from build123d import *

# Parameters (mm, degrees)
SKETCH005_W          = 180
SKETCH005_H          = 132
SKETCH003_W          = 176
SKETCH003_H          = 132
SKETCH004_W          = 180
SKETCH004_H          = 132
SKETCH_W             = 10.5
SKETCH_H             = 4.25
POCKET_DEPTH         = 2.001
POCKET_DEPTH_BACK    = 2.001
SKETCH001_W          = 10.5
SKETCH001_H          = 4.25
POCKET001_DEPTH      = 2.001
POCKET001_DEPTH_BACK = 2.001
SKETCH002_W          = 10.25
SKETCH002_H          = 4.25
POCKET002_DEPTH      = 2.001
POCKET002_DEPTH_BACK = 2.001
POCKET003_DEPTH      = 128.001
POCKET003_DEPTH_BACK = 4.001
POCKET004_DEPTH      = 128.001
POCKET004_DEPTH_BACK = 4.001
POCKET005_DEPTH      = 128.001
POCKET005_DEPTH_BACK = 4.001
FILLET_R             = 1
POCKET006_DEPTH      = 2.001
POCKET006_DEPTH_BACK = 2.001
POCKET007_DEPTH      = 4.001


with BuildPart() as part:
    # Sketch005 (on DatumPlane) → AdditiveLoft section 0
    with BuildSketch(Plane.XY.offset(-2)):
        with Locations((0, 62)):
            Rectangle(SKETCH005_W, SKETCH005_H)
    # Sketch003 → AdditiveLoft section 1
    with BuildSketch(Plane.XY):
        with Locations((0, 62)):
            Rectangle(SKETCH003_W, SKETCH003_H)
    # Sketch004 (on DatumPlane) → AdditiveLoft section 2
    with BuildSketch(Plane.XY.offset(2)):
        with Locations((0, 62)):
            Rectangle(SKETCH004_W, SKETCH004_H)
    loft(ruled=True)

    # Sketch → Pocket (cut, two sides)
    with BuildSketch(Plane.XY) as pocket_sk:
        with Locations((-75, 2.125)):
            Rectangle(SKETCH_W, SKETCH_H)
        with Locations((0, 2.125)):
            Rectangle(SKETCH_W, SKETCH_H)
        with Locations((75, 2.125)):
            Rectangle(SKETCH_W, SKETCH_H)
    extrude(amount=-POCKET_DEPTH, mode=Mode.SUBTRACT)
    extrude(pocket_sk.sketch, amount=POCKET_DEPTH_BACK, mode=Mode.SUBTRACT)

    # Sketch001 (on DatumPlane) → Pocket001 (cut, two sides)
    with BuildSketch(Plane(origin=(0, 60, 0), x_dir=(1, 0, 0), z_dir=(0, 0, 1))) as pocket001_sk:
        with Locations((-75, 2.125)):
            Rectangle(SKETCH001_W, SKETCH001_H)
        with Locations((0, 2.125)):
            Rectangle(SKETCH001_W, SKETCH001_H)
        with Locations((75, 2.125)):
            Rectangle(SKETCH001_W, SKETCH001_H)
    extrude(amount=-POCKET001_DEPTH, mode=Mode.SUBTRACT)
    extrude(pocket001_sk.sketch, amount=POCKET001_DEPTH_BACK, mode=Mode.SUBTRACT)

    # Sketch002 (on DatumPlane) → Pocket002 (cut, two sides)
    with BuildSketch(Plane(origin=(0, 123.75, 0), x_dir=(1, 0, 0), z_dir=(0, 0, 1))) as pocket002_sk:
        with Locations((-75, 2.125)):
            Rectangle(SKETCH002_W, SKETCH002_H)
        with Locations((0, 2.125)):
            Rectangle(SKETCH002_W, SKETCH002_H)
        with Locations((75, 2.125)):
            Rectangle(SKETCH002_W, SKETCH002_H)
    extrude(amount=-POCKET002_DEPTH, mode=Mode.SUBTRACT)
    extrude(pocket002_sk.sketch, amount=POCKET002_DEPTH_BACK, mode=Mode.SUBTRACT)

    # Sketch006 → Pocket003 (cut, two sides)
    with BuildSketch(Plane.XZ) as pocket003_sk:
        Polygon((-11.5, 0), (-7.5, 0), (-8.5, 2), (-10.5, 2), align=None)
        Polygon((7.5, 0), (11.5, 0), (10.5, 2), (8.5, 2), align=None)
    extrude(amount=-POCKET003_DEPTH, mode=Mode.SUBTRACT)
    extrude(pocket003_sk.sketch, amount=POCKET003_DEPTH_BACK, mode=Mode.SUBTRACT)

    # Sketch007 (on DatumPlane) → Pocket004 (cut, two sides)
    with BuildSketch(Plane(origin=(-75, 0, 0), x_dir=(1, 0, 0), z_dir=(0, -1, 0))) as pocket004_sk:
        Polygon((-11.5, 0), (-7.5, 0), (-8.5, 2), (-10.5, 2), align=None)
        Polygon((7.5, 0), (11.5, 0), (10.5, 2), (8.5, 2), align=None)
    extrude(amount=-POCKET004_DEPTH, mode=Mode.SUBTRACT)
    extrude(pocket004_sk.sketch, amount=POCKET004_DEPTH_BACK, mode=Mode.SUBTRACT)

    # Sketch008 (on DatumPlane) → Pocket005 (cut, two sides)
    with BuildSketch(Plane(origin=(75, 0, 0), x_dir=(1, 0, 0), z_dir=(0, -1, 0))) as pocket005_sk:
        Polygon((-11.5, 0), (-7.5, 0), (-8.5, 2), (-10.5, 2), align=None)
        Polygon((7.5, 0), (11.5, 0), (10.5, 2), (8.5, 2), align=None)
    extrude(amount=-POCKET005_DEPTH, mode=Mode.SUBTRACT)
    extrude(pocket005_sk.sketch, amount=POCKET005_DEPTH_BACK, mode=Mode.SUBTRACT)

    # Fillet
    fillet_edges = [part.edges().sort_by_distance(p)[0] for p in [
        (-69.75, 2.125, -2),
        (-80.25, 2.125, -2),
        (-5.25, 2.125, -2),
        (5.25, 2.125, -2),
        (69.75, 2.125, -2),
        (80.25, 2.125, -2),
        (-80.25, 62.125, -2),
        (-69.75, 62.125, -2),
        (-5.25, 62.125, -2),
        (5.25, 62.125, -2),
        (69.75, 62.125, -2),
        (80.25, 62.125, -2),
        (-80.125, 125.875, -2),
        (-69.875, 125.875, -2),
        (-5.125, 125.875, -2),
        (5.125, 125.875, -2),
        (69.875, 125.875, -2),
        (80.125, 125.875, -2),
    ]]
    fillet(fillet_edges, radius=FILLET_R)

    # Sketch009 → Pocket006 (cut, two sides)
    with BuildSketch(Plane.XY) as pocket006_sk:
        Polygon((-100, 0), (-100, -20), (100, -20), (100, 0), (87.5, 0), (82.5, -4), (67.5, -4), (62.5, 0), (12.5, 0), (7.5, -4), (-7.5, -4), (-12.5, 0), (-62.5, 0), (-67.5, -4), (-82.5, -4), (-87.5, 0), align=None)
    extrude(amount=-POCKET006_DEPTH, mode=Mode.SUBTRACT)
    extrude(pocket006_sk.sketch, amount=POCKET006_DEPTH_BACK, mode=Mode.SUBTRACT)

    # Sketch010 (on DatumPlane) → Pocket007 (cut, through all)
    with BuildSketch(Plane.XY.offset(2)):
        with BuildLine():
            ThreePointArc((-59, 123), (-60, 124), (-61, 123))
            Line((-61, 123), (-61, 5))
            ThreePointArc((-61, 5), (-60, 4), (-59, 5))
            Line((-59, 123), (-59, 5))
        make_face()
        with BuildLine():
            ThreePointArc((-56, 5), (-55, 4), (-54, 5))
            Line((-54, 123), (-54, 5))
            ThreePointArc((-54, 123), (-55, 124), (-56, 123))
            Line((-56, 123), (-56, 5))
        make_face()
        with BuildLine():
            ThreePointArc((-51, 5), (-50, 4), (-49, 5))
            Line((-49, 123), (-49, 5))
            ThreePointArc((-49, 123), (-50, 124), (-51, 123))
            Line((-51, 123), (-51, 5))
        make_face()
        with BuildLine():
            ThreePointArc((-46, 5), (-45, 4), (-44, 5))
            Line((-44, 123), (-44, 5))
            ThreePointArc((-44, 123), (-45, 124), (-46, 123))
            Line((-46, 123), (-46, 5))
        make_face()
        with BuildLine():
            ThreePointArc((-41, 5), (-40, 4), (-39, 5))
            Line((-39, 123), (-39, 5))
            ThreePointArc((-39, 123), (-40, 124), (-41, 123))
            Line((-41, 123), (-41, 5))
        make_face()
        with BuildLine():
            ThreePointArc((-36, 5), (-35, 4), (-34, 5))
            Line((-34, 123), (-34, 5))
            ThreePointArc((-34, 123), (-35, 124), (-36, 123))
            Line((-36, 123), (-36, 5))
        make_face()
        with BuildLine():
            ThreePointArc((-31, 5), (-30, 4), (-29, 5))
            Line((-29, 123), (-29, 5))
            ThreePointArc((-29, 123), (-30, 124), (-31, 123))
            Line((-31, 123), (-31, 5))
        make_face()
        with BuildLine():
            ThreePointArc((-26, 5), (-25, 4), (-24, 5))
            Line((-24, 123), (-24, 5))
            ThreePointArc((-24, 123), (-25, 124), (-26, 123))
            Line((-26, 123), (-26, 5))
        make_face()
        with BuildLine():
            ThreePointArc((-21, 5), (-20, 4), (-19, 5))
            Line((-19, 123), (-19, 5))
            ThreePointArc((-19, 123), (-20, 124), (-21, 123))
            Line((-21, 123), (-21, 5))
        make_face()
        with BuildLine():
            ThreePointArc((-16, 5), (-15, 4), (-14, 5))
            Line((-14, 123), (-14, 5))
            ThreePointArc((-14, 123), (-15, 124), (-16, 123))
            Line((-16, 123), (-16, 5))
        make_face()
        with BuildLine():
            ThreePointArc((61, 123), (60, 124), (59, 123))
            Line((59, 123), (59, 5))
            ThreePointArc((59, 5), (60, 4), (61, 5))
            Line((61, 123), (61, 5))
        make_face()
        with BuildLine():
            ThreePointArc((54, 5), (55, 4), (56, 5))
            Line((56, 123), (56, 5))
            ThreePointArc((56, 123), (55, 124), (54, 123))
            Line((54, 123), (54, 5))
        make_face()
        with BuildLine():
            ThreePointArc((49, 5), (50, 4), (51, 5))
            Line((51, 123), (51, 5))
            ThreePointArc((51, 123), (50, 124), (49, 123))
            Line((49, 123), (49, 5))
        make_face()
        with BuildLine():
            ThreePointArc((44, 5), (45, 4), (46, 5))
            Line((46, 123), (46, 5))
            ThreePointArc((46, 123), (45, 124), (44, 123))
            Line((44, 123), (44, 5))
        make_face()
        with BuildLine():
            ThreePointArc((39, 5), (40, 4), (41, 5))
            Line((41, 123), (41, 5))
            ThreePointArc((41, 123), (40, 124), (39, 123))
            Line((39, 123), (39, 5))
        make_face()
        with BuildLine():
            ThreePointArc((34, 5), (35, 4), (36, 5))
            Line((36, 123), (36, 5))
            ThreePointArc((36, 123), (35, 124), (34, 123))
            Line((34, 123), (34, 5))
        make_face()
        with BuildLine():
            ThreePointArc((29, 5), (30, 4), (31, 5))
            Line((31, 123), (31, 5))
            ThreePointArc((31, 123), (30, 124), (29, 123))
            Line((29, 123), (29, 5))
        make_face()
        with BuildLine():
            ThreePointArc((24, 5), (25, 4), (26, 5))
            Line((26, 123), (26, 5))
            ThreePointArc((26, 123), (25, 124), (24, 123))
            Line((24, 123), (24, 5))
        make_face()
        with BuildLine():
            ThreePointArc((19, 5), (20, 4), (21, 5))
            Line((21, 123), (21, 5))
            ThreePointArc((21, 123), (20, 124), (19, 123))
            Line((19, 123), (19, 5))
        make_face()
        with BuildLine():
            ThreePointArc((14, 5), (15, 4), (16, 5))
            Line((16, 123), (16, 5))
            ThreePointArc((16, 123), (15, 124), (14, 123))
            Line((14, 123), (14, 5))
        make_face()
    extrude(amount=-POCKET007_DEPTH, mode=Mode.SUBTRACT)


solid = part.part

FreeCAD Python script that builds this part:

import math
import FreeCAD as App
import Part
import Sketcher
Q = App.Units.Quantity


def edges_at(feature, points):
    """Names of the edges that pass closest to the given points."""
    edges = feature.Shape.Edges
    near = lambda p: min(range(len(edges)), key=lambda i: edges[i].distToShape(Part.Vertex(*p))[0])
    return sorted({f"Edge{near(p) + 1}" for p in points})


def add_polygon(sketch, points):
    """Adds a closed chain of lines whose ends are joined by coincident constraints."""
    first, n = sketch.GeometryCount, len(points)
    for a, b in zip(points, points[1:] + points[:1]):
        sketch.addGeometry(Part.LineSegment(App.Vector(*a, 0), App.Vector(*b, 0)), False)
    for i in range(n):
        sketch.addConstraint(Sketcher.Constraint("Coincident", first + i, 2, first + (i + 1) % n, 1))

doc = App.newDocument("Part")
body = doc.addObject("PartDesign::Body", "Body")

# Sketch on XY plane
sketch1 = body.newObject("Sketcher::SketchObject", "Sketch")
sketch1.AttachmentSupport = (doc.getObject("XY_Plane"), [""])
sketch1.MapMode = "FlatFace"
sketch1.AttachmentOffset = App.Placement(App.Vector(0, 0, -2), App.Rotation())
add_polygon(sketch1, [(-90, 128), (-90, -4), (90, -4), (90, 128)])  # lines 0-3
sketch1.addConstraint([
    Sketcher.Constraint("Vertical", 0),
    Sketcher.Constraint("Horizontal", 1),
    Sketcher.Constraint("Vertical", 2),
    Sketcher.Constraint("Horizontal", 3),
    Sketcher.Constraint("DistanceX", 1, 1, 1, 2, Q("180 mm")),
    Sketcher.Constraint("DistanceY", 0, 2, 0, 1, Q("132 mm")),
    Sketcher.Constraint("DistanceX", 0, 2, -1, 1, Q("90 mm")),
    Sketcher.Constraint("DistanceY", 0, 2, -1, 1, Q("4 mm")),
])

# Sketch on XY plane
sketch2 = body.newObject("Sketcher::SketchObject", "Sketch001")
sketch2.AttachmentSupport = (doc.getObject("XY_Plane"), [""])
sketch2.MapMode = "FlatFace"
add_polygon(sketch2, [(-88, 128), (-88, -4), (88, -4), (88, 128)])  # lines 0-3
sketch2.addConstraint([
    Sketcher.Constraint("Vertical", 0),
    Sketcher.Constraint("Horizontal", 1),
    Sketcher.Constraint("Vertical", 2),
    Sketcher.Constraint("Horizontal", 3),
    Sketcher.Constraint("DistanceX", 1, 1, 1, 2, Q("176 mm")),
    Sketcher.Constraint("DistanceY", 0, 2, 0, 1, Q("132 mm")),
    Sketcher.Constraint("DistanceX", 0, 2, -1, 1, Q("88 mm")),
    Sketcher.Constraint("DistanceY", 0, 2, -1, 1, Q("4 mm")),
])

# Sketch on XY plane
sketch3 = body.newObject("Sketcher::SketchObject", "Sketch002")
sketch3.AttachmentSupport = (doc.getObject("XY_Plane"), [""])
sketch3.MapMode = "FlatFace"
sketch3.AttachmentOffset = App.Placement(App.Vector(0, 0, 2), App.Rotation())
add_polygon(sketch3, [(-90, 128), (-90, -4), (90, -4), (90, 128)])  # lines 0-3
sketch3.addConstraint([
    Sketcher.Constraint("Vertical", 0),
    Sketcher.Constraint("Horizontal", 1),
    Sketcher.Constraint("Vertical", 2),
    Sketcher.Constraint("Horizontal", 3),
    Sketcher.Constraint("DistanceX", 1, 1, 1, 2, Q("180 mm")),
    Sketcher.Constraint("DistanceY", 0, 2, 0, 1, Q("132 mm")),
    Sketcher.Constraint("DistanceX", 0, 2, -1, 1, Q("90 mm")),
    Sketcher.Constraint("DistanceY", 0, 2, -1, 1, Q("4 mm")),
])

additiveloft = body.newObject("PartDesign::AdditiveLoft", "AdditiveLoft")
additiveloft.Profile = sketch1
additiveloft.Sections = [sketch2, sketch3]
additiveloft.Ruled = True

# Sketch on XY plane
sketch4 = body.newObject("Sketcher::SketchObject", "Sketch003")
sketch4.AttachmentSupport = (doc.getObject("XY_Plane"), [""])
sketch4.MapMode = "FlatFace"
add_polygon(sketch4, [(-80.25, 4.25), (-80.25, 0), (-69.75, 0), (-69.75, 4.25)])  # lines 0-3
add_polygon(sketch4, [(-5.25, 4.25), (-5.25, 0), (5.25, 0), (5.25, 4.25)])  # lines 4-7
add_polygon(sketch4, [(69.75, 4.25), (69.75, 0), (80.25, 0), (80.25, 4.25)])  # lines 8-11
sketch4.addConstraint([
    Sketcher.Constraint("Vertical", 0),
    Sketcher.Constraint("Horizontal", 1),
    Sketcher.Constraint("Vertical", 2),
    Sketcher.Constraint("Horizontal", 3),
    Sketcher.Constraint("Vertical", 4),
    Sketcher.Constraint("Horizontal", 5),
    Sketcher.Constraint("Vertical", 6),
    Sketcher.Constraint("Horizontal", 7),
    Sketcher.Constraint("Vertical", 8),
    Sketcher.Constraint("Horizontal", 9),
    Sketcher.Constraint("Vertical", 10),
    Sketcher.Constraint("Horizontal", 11),
    Sketcher.Constraint("Symmetric", 4, 2, 5, 2, -1, 1),
    Sketcher.Constraint("Symmetric", 1, 2, 8, 2, -1, 1),
    Sketcher.Constraint("Symmetric", 0, 2, 9, 2, -2),
    Sketcher.Constraint("Horizontal", 3, 2, 6, 2),
    Sketcher.Constraint("Horizontal", 7, 2, 10, 2),
    Sketcher.Constraint("Equal", 3, 5),
    Sketcher.Constraint("DistanceX", 1, 1, 1, 2, Q("10.5 mm")),
    Sketcher.Constraint("DistanceX", 0, 2, 4, 2, Q("75 mm")),
    Sketcher.Constraint("DistanceY", 0, 2, 0, 1, Q("4.25 mm")),
])
pocket1 = body.newObject("PartDesign::Pocket", "Pocket")
pocket1.Profile = sketch4
pocket1.Type = "ThroughAll"
pocket1.Midplane = True

# Sketch on XY plane
sketch5 = body.newObject("Sketcher::SketchObject", "Sketch004")
sketch5.AttachmentSupport = (doc.getObject("XY_Plane"), [""])
sketch5.MapMode = "FlatFace"
add_polygon(sketch5, [(-80.25, 64.25), (-80.25, 60), (-69.75, 60), (-69.75, 64.25)])  # lines 0-3
add_polygon(sketch5, [(-5.25, 64.25), (-5.25, 60), (5.25, 60), (5.25, 64.25)])  # lines 4-7
add_polygon(sketch5, [(69.75, 64.25), (69.75, 60), (80.25, 60), (80.25, 64.25)])  # lines 8-11
sketch5.addConstraint([
    Sketcher.Constraint("Vertical", 0),
    Sketcher.Constraint("Horizontal", 1),
    Sketcher.Constraint("Vertical", 2),
    Sketcher.Constraint("Horizontal", 3),
    Sketcher.Constraint("Vertical", 4),
    Sketcher.Constraint("Horizontal", 5),
    Sketcher.Constraint("Vertical", 6),
    Sketcher.Constraint("Horizontal", 7),
    Sketcher.Constraint("Vertical", 8),
    Sketcher.Constraint("Horizontal", 9),
    Sketcher.Constraint("Vertical", 10),
    Sketcher.Constraint("Horizontal", 11),
    Sketcher.Constraint("Symmetric", 1, 2, 8, 2, -2),
    Sketcher.Constraint("Symmetric", 3, 2, 10, 2, -2),
    Sketcher.Constraint("Horizontal", 1, 2, 4, 2),
    Sketcher.Constraint("Horizontal", 3, 2, 6, 2),
    Sketcher.Constraint("Equal", 3, 5),
    Sketcher.Constraint("DistanceX", 1, 1, 1, 2, Q("10.5 mm")),
    Sketcher.Constraint("DistanceY", -1, 1, 0, 2, Q("60 mm")),
    Sketcher.Constraint("DistanceX", 0, 2, 4, 2, Q("75 mm")),
    Sketcher.Constraint("DistanceX", 4, 2, 8, 2, Q("75 mm")),
    Sketcher.Constraint("DistanceY", 0, 2, 0, 1, Q("4.25 mm")),
])
pocket2 = body.newObject("PartDesign::Pocket", "Pocket001")
pocket2.Profile = sketch5
pocket2.Type = "ThroughAll"
pocket2.Midplane = True

# Sketch on XY plane
sketch6 = body.newObject("Sketcher::SketchObject", "Sketch005")
sketch6.AttachmentSupport = (doc.getObject("XY_Plane"), [""])
sketch6.MapMode = "FlatFace"
add_polygon(sketch6, [(-80.125, 128), (-80.125, 123.75), (-69.875, 123.75), (-69.875, 128)])  # lines 0-3
add_polygon(sketch6, [(-5.125, 128), (-5.125, 123.75), (5.125, 123.75), (5.125, 128)])  # lines 4-7
add_polygon(sketch6, [(69.875, 128), (69.875, 123.75), (80.125, 123.75), (80.125, 128)])  # lines 8-11
sketch6.addConstraint([
    Sketcher.Constraint("Vertical", 0),
    Sketcher.Constraint("Horizontal", 1),
    Sketcher.Constraint("Vertical", 2),
    Sketcher.Constraint("Horizontal", 3),
    Sketcher.Constraint("Vertical", 4),
    Sketcher.Constraint("Horizontal", 5),
    Sketcher.Constraint("Vertical", 6),
    Sketcher.Constraint("Horizontal", 7),
    Sketcher.Constraint("Vertical", 8),
    Sketcher.Constraint("Horizontal", 9),
    Sketcher.Constraint("Vertical", 10),
    Sketcher.Constraint("Horizontal", 11),
    Sketcher.Constraint("Symmetric", 1, 2, 8, 2, -2),
    Sketcher.Constraint("Symmetric", 3, 2, 10, 2, -2),
    Sketcher.Constraint("Horizontal", 1, 2, 4, 2),
    Sketcher.Constraint("Horizontal", 3, 2, 6, 2),
    Sketcher.Constraint("Equal", 3, 5),
    Sketcher.Constraint("DistanceY", -1, 1, 2, 2, Q("128 mm")),
    Sketcher.Constraint("DistanceX", 0, 2, 4, 2, Q("75 mm")),
    Sketcher.Constraint("DistanceX", 4, 2, 8, 2, Q("75 mm")),
    Sketcher.Constraint("DistanceX", 1, 1, 1, 2, Q("10.25 mm")),
    Sketcher.Constraint("DistanceY", 0, 2, 0, 1, Q("4.25 mm")),
])
pocket3 = body.newObject("PartDesign::Pocket", "Pocket002")
pocket3.Profile = sketch6
pocket3.Type = "ThroughAll"
pocket3.Midplane = True

# Sketch on XZ plane
sketch7 = body.newObject("Sketcher::SketchObject", "Sketch006")
sketch7.AttachmentSupport = (doc.getObject("XZ_Plane"), [""])
sketch7.MapMode = "FlatFace"
add_polygon(sketch7, [(-11.5, 0), (-7.5, 0), (-8.5, 2), (-10.5, 2)])  # lines 0-3
add_polygon(sketch7, [(7.5, 0), (11.5, 0), (10.5, 2), (8.5, 2)])  # lines 4-7
sketch7.addConstraint([
    Sketcher.Constraint("Horizontal", 0),
    Sketcher.Constraint("Horizontal", 2),
    Sketcher.Constraint("Horizontal", 4),
    Sketcher.Constraint("Horizontal", 6),
    Sketcher.Constraint("Symmetric", 3, 2, 4, 2, -1, 1),
    Sketcher.Constraint("Symmetric", 2, 2, 5, 2, -2),
    Sketcher.Constraint("Symmetric", 0, 2, 7, 2, -2),
    Sketcher.Constraint("Parallel", 1, 5),
    Sketcher.Constraint("Parallel", 3, 7),
    Sketcher.Constraint("DistanceX", 0, 1, 0, 2, Q("4 mm")),
    Sketcher.Constraint("DistanceX", 2, 2, 2, 1, Q("2 mm")),
    Sketcher.Constraint("DistanceY", -1, 1, 1, 2, Q("2 mm")),
    Sketcher.Constraint("DistanceX", 0, 2, 4, 2, Q("19 mm")),
])
pocket4 = body.newObject("PartDesign::Pocket", "Pocket003")
pocket4.Profile = sketch7
pocket4.Type = "ThroughAll"
pocket4.Midplane = True

# Sketch on XZ plane
sketch8 = body.newObject("Sketcher::SketchObject", "Sketch007")
sketch8.AttachmentSupport = (doc.getObject("XZ_Plane"), [""])
sketch8.MapMode = "FlatFace"
add_polygon(sketch8, [(-86.5, 0), (-82.5, 0), (-83.5, 2), (-85.5, 2)])  # lines 0-3
add_polygon(sketch8, [(-67.5, 0), (-63.5, 0), (-64.5, 2), (-66.5, 2)])  # lines 4-7
sketch8.addConstraint([
    Sketcher.Constraint("Horizontal", 0),
    Sketcher.Constraint("Horizontal", 2),
    Sketcher.Constraint("Horizontal", 4),
    Sketcher.Constraint("Horizontal", 6),
    Sketcher.Constraint("PointOnObject", 0, 2, -1),
    Sketcher.Constraint("PointOnObject", 4, 2, -1),
    Sketcher.Constraint("Parallel", 1, 5),
    Sketcher.Constraint("Parallel", 3, 7),
    Sketcher.Constraint("Horizontal", 2, 2, 5, 2),
    Sketcher.Constraint("Equal", 0, 4),
    Sketcher.Constraint("Equal", 1, 3),
    Sketcher.Constraint("DistanceX", 0, 1, 0, 2, Q("4 mm")),
    Sketcher.Constraint("DistanceX", 2, 2, 2, 1, Q("2 mm")),
    Sketcher.Constraint("DistanceY", -1, 1, 1, 2, Q("2 mm")),
    Sketcher.Constraint("DistanceX", 0, 2, 4, 2, Q("19 mm")),
    Sketcher.Constraint("DistanceX", 0, 2, -1, 1, Q("82.5 mm")),
])
pocket5 = body.newObject("PartDesign::Pocket", "Pocket004")
pocket5.Profile = sketch8
pocket5.Type = "ThroughAll"
pocket5.Midplane = True

# Sketch on XZ plane
sketch9 = body.newObject("Sketcher::SketchObject", "Sketch008")
sketch9.AttachmentSupport = (doc.getObject("XZ_Plane"), [""])
sketch9.MapMode = "FlatFace"
add_polygon(sketch9, [(63.5, 0), (67.5, 0), (66.5, 2), (64.5, 2)])  # lines 0-3
add_polygon(sketch9, [(82.5, 0), (86.5, 0), (85.5, 2), (83.5, 2)])  # lines 4-7
sketch9.addConstraint([
    Sketcher.Constraint("Horizontal", 0),
    Sketcher.Constraint("Horizontal", 2),
    Sketcher.Constraint("Horizontal", 4),
    Sketcher.Constraint("Horizontal", 6),
    Sketcher.Constraint("PointOnObject", 0, 2, -1),
    Sketcher.Constraint("PointOnObject", 4, 2, -1),
    Sketcher.Constraint("Parallel", 1, 5),
    Sketcher.Constraint("Parallel", 3, 7),
    Sketcher.Constraint("Horizontal", 2, 2, 5, 2),
    Sketcher.Constraint("Equal", 0, 4),
    Sketcher.Constraint("Equal", 1, 3),
    Sketcher.Constraint("DistanceX", 0, 1, 0, 2, Q("4 mm")),
    Sketcher.Constraint("DistanceX", 2, 2, 2, 1, Q("2 mm")),
    Sketcher.Constraint("DistanceY", -1, 1, 1, 2, Q("2 mm")),
    Sketcher.Constraint("DistanceX", 0, 2, 4, 2, Q("19 mm")),
    Sketcher.Constraint("DistanceX", -1, 1, 0, 2, Q("67.5 mm")),
])
pocket6 = body.newObject("PartDesign::Pocket", "Pocket005")
pocket6.Profile = sketch9
pocket6.Type = "ThroughAll"
pocket6.Midplane = True
doc.recompute()

fillet = body.newObject("PartDesign::Fillet", "Fillet")
fillet.Base = (pocket6, edges_at(pocket6, [
    (-69.75, 2.125, -2),
    (-80.25, 2.125, -2),
    (-5.25, 2.125, -2),
    (5.25, 2.125, -2),
    (69.75, 2.125, -2),
    (80.25, 2.125, -2),
    (-80.25, 62.125, -2),
    (-69.75, 62.125, -2),
    (-5.25, 62.125, -2),
    (5.25, 62.125, -2),
    (69.75, 62.125, -2),
    (80.25, 62.125, -2),
    (-80.125, 125.875, -2),
    (-69.875, 125.875, -2),
    (-5.125, 125.875, -2),
    (5.125, 125.875, -2),
    (69.875, 125.875, -2),
    (80.125, 125.875, -2),
]))
fillet.Radius = 1

# Sketch on XY plane
sketch10 = body.newObject("Sketcher::SketchObject", "Sketch009")
sketch10.AttachmentSupport = (doc.getObject("XY_Plane"), [""])
sketch10.MapMode = "FlatFace"
add_polygon(sketch10, [(-100, 0), (-100, -20), (100, -20), (100, 0), (87.5, 0), (82.5, -4), (67.5, -4), (62.5, 0), (12.5, 0), (7.5, -4), (-7.5, -4), (-12.5, 0), (-62.5, 0), (-67.5, -4), (-82.5, -4), (-87.5, 0)])  # lines 0-15
sketch10.addConstraint([
    Sketcher.Constraint("Vertical", 0),
    Sketcher.Constraint("Horizontal", 1),
    Sketcher.Constraint("Vertical", 2),
    Sketcher.Constraint("Horizontal", 3),
    Sketcher.Constraint("Horizontal", 5),
    Sketcher.Constraint("Horizontal", 7),
    Sketcher.Constraint("Horizontal", 9),
    Sketcher.Constraint("Horizontal", 11),
    Sketcher.Constraint("Horizontal", 13),
    Sketcher.Constraint("Horizontal", 15),
    Sketcher.Constraint("Symmetric", 7, 2, 10, 2, -1, 1),
    Sketcher.Constraint("Symmetric", 3, 2, 14, 2, -1, 1),
    Sketcher.Constraint("Symmetric", 6, 2, 11, 2, -2),
    Sketcher.Constraint("Symmetric", 5, 2, 12, 2, -2),
    Sketcher.Constraint("Symmetric", 2, 2, 15, 2, -2),
    Sketcher.Constraint("Parallel", 4, 8),
    Sketcher.Constraint("Parallel", 6, 10),
    Sketcher.Constraint("Parallel", 8, 12),
    Sketcher.Constraint("Parallel", 10, 14),
    Sketcher.Constraint("Horizontal", 5, 2, 8, 2),
    Sketcher.Constraint("Equal", 5, 9),
    Sketcher.Constraint("DistanceX", 1, 1, 1, 2, Q("200 mm")),
    Sketcher.Constraint("DistanceX", 5, 2, 5, 1, Q("15 mm")),
    Sketcher.Constraint("DistanceX", 7, 2, 7, 1, Q("50 mm")),
    Sketcher.Constraint("DistanceY", 0, 2, 0, 1, Q("20 mm")),
    Sketcher.Constraint("DistanceX", 3, 2, 3, 1, Q("12.5 mm")),
    Sketcher.Constraint("DistanceY", 4, 2, -1, 1, Q("4 mm")),
])
pocket7 = body.newObject("PartDesign::Pocket", "Pocket006")
pocket7.Profile = sketch10
pocket7.Type = "ThroughAll"
pocket7.Midplane = True

# Sketch on XY plane
sketch11 = body.newObject("Sketcher::SketchObject", "Sketch010")
sketch11.AttachmentSupport = (doc.getObject("XY_Plane"), [""])
sketch11.MapMode = "FlatFace"
sketch11.AttachmentOffset = App.Placement(App.Vector(0, 0, 2), App.Rotation())
sketch11.addGeometry([
    Part.ArcOfCircle(Part.Circle(App.Vector(-60, 123, 0), App.Vector(0, 0, 1), 1), math.radians(0), math.radians(180)),  # 0
    Part.LineSegment(App.Vector(-61, 123, 0), App.Vector(-61, 5, 0)),  # 1
    Part.ArcOfCircle(Part.Circle(App.Vector(-60, 5, 0), App.Vector(0, 0, 1), 1), math.radians(180), math.radians(360)),  # 2
    Part.LineSegment(App.Vector(-59, 5, 0), App.Vector(-59, 123, 0)),  # 3
    Part.ArcOfCircle(Part.Circle(App.Vector(-55, 5, 0), App.Vector(0, 0, 1), 1), math.radians(180), math.radians(360)),  # 4
    Part.LineSegment(App.Vector(-54, 5, 0), App.Vector(-54, 123, 0)),  # 5
    Part.ArcOfCircle(Part.Circle(App.Vector(-55, 123, 0), App.Vector(0, 0, 1), 1), math.radians(0), math.radians(180)),  # 6
    Part.LineSegment(App.Vector(-56, 123, 0), App.Vector(-56, 5, 0)),  # 7
    Part.ArcOfCircle(Part.Circle(App.Vector(-50, 5, 0), App.Vector(0, 0, 1), 1), math.radians(180), math.radians(360)),  # 8
    Part.LineSegment(App.Vector(-49, 5, 0), App.Vector(-49, 123, 0)),  # 9
    Part.ArcOfCircle(Part.Circle(App.Vector(-50, 123, 0), App.Vector(0, 0, 1), 1), math.radians(0), math.radians(180)),  # 10
    Part.LineSegment(App.Vector(-51, 123, 0), App.Vector(-51, 5, 0)),  # 11
    Part.ArcOfCircle(Part.Circle(App.Vector(-45, 5, 0), App.Vector(0, 0, 1), 1), math.radians(180), math.radians(360)),  # 12
    Part.LineSegment(App.Vector(-44, 5, 0), App.Vector(-44, 123, 0)),  # 13
    Part.ArcOfCircle(Part.Circle(App.Vector(-45, 123, 0), App.Vector(0, 0, 1), 1), math.radians(0), math.radians(180)),  # 14
    Part.LineSegment(App.Vector(-46, 123, 0), App.Vector(-46, 5, 0)),  # 15
    Part.ArcOfCircle(Part.Circle(App.Vector(-40, 5, 0), App.Vector(0, 0, 1), 1), math.radians(180), math.radians(360)),  # 16
    Part.LineSegment(App.Vector(-39, 5, 0), App.Vector(-39, 123, 0)),  # 17
    Part.ArcOfCircle(Part.Circle(App.Vector(-40, 123, 0), App.Vector(0, 0, 1), 1), math.radians(0), math.radians(180)),  # 18
    Part.LineSegment(App.Vector(-41, 123, 0), App.Vector(-41, 5, 0)),  # 19
    Part.ArcOfCircle(Part.Circle(App.Vector(-35, 5, 0), App.Vector(0, 0, 1), 1), math.radians(180), math.radians(360)),  # 20
    Part.LineSegment(App.Vector(-34, 5, 0), App.Vector(-34, 123, 0)),  # 21
    Part.ArcOfCircle(Part.Circle(App.Vector(-35, 123, 0), App.Vector(0, 0, 1), 1), math.radians(0), math.radians(180)),  # 22
    Part.LineSegment(App.Vector(-36, 123, 0), App.Vector(-36, 5, 0)),  # 23
    Part.ArcOfCircle(Part.Circle(App.Vector(-30, 5, 0), App.Vector(0, 0, 1), 1), math.radians(180), math.radians(360)),  # 24
    Part.LineSegment(App.Vector(-29, 5, 0), App.Vector(-29, 123, 0)),  # 25
    Part.ArcOfCircle(Part.Circle(App.Vector(-30, 123, 0), App.Vector(0, 0, 1), 1), math.radians(0), math.radians(180)),  # 26
    Part.LineSegment(App.Vector(-31, 123, 0), App.Vector(-31, 5, 0)),  # 27
    Part.ArcOfCircle(Part.Circle(App.Vector(-25, 5, 0), App.Vector(0, 0, 1), 1), math.radians(180), math.radians(360)),  # 28
    Part.LineSegment(App.Vector(-24, 5, 0), App.Vector(-24, 123, 0)),  # 29
    Part.ArcOfCircle(Part.Circle(App.Vector(-25, 123, 0), App.Vector(0, 0, 1), 1), math.radians(0), math.radians(180)),  # 30
    Part.LineSegment(App.Vector(-26, 123, 0), App.Vector(-26, 5, 0)),  # 31
    Part.ArcOfCircle(Part.Circle(App.Vector(-20, 5, 0), App.Vector(0, 0, 1), 1), math.radians(180), math.radians(360)),  # 32
    Part.LineSegment(App.Vector(-19, 5, 0), App.Vector(-19, 123, 0)),  # 33
    Part.ArcOfCircle(Part.Circle(App.Vector(-20, 123, 0), App.Vector(0, 0, 1), 1), math.radians(0), math.radians(180)),  # 34
    Part.LineSegment(App.Vector(-21, 123, 0), App.Vector(-21, 5, 0)),  # 35
    Part.ArcOfCircle(Part.Circle(App.Vector(-15, 5, 0), App.Vector(0, 0, 1), 1), math.radians(180), math.radians(360)),  # 36
    Part.LineSegment(App.Vector(-14, 5, 0), App.Vector(-14, 123, 0)),  # 37
    Part.ArcOfCircle(Part.Circle(App.Vector(-15, 123, 0), App.Vector(0, 0, 1), 1), math.radians(0), math.radians(180)),  # 38
    Part.LineSegment(App.Vector(-16, 123, 0), App.Vector(-16, 5, 0)),  # 39
    Part.ArcOfCircle(Part.Circle(App.Vector(60, 123, 0), App.Vector(0, 0, 1), 1), math.radians(0), math.radians(180)),  # 40
    Part.LineSegment(App.Vector(59, 123, 0), App.Vector(59, 5, 0)),  # 41
    Part.ArcOfCircle(Part.Circle(App.Vector(60, 5, 0), App.Vector(0, 0, 1), 1), math.radians(180), math.radians(360)),  # 42
    Part.LineSegment(App.Vector(61, 5, 0), App.Vector(61, 123, 0)),  # 43
    Part.ArcOfCircle(Part.Circle(App.Vector(55, 5, 0), App.Vector(0, 0, 1), 1), math.radians(180), math.radians(360)),  # 44
    Part.LineSegment(App.Vector(56, 5, 0), App.Vector(56, 123, 0)),  # 45
    Part.ArcOfCircle(Part.Circle(App.Vector(55, 123, 0), App.Vector(0, 0, 1), 1), math.radians(0), math.radians(180)),  # 46
    Part.LineSegment(App.Vector(54, 123, 0), App.Vector(54, 5, 0)),  # 47
    Part.ArcOfCircle(Part.Circle(App.Vector(50, 5, 0), App.Vector(0, 0, 1), 1), math.radians(180), math.radians(360)),  # 48
    Part.LineSegment(App.Vector(51, 5, 0), App.Vector(51, 123, 0)),  # 49
    Part.ArcOfCircle(Part.Circle(App.Vector(50, 123, 0), App.Vector(0, 0, 1), 1), math.radians(0), math.radians(180)),  # 50
    Part.LineSegment(App.Vector(49, 123, 0), App.Vector(49, 5, 0)),  # 51
    Part.ArcOfCircle(Part.Circle(App.Vector(45, 5, 0), App.Vector(0, 0, 1), 1), math.radians(180), math.radians(360)),  # 52
    Part.LineSegment(App.Vector(46, 5, 0), App.Vector(46, 123, 0)),  # 53
    Part.ArcOfCircle(Part.Circle(App.Vector(45, 123, 0), App.Vector(0, 0, 1), 1), math.radians(0), math.radians(180)),  # 54
    Part.LineSegment(App.Vector(44, 123, 0), App.Vector(44, 5, 0)),  # 55
    Part.ArcOfCircle(Part.Circle(App.Vector(40, 5, 0), App.Vector(0, 0, 1), 1), math.radians(180), math.radians(360)),  # 56
    Part.LineSegment(App.Vector(41, 5, 0), App.Vector(41, 123, 0)),  # 57
    Part.ArcOfCircle(Part.Circle(App.Vector(40, 123, 0), App.Vector(0, 0, 1), 1), math.radians(0), math.radians(180)),  # 58
    Part.LineSegment(App.Vector(39, 123, 0), App.Vector(39, 5, 0)),  # 59
    Part.ArcOfCircle(Part.Circle(App.Vector(35, 5, 0), App.Vector(0, 0, 1), 1), math.radians(180), math.radians(360)),  # 60
    Part.LineSegment(App.Vector(36, 5, 0), App.Vector(36, 123, 0)),  # 61
    Part.ArcOfCircle(Part.Circle(App.Vector(35, 123, 0), App.Vector(0, 0, 1), 1), math.radians(0), math.radians(180)),  # 62
    Part.LineSegment(App.Vector(34, 123, 0), App.Vector(34, 5, 0)),  # 63
    Part.ArcOfCircle(Part.Circle(App.Vector(30, 5, 0), App.Vector(0, 0, 1), 1), math.radians(180), math.radians(360)),  # 64
    Part.LineSegment(App.Vector(31, 5, 0), App.Vector(31, 123, 0)),  # 65
    Part.ArcOfCircle(Part.Circle(App.Vector(30, 123, 0), App.Vector(0, 0, 1), 1), math.radians(0), math.radians(180)),  # 66
    Part.LineSegment(App.Vector(29, 123, 0), App.Vector(29, 5, 0)),  # 67
    Part.ArcOfCircle(Part.Circle(App.Vector(25, 5, 0), App.Vector(0, 0, 1), 1), math.radians(180), math.radians(360)),  # 68
    Part.LineSegment(App.Vector(26, 5, 0), App.Vector(26, 123, 0)),  # 69
    Part.ArcOfCircle(Part.Circle(App.Vector(25, 123, 0), App.Vector(0, 0, 1), 1), math.radians(0), math.radians(180)),  # 70
    Part.LineSegment(App.Vector(24, 123, 0), App.Vector(24, 5, 0)),  # 71
    Part.ArcOfCircle(Part.Circle(App.Vector(20, 5, 0), App.Vector(0, 0, 1), 1), math.radians(180), math.radians(360)),  # 72
    Part.LineSegment(App.Vector(21, 5, 0), App.Vector(21, 123, 0)),  # 73
    Part.ArcOfCircle(Part.Circle(App.Vector(20, 123, 0), App.Vector(0, 0, 1), 1), math.radians(0), math.radians(180)),  # 74
    Part.LineSegment(App.Vector(19, 123, 0), App.Vector(19, 5, 0)),  # 75
    Part.ArcOfCircle(Part.Circle(App.Vector(15, 5, 0), App.Vector(0, 0, 1), 1), math.radians(180), math.radians(360)),  # 76
    Part.LineSegment(App.Vector(16, 5, 0), App.Vector(16, 123, 0)),  # 77
    Part.ArcOfCircle(Part.Circle(App.Vector(15, 123, 0), App.Vector(0, 0, 1), 1), math.radians(0), math.radians(180)),  # 78
    Part.LineSegment(App.Vector(14, 123, 0), App.Vector(14, 5, 0)),  # 79
], False)
sketch11.addConstraint([
    Sketcher.Constraint("Tangent", 0, 2, 1, 1),
    Sketcher.Constraint("Tangent", 1, 2, 2, 1),
    Sketcher.Constraint("Tangent", 2, 2, 3, 1),
    Sketcher.Constraint("Tangent", 3, 2, 0, 1),
    Sketcher.Constraint("Tangent", 4, 2, 5, 1),
    Sketcher.Constraint("Tangent", 5, 2, 6, 1),
    Sketcher.Constraint("Tangent", 6, 2, 7, 1),
    Sketcher.Constraint("Tangent", 7, 2, 4, 1),
    Sketcher.Constraint("Tangent", 8, 2, 9, 1),
    Sketcher.Constraint("Tangent", 9, 2, 10, 1),
    Sketcher.Constraint("Tangent", 10, 2, 11, 1),
    Sketcher.Constraint("Tangent", 11, 2, 8, 1),
    Sketcher.Constraint("Tangent", 12, 2, 13, 1),
    Sketcher.Constraint("Tangent", 13, 2, 14, 1),
    Sketcher.Constraint("Tangent", 14, 2, 15, 1),
    Sketcher.Constraint("Tangent", 15, 2, 12, 1),
    Sketcher.Constraint("Tangent", 16, 2, 17, 1),
    Sketcher.Constraint("Tangent", 17, 2, 18, 1),
    Sketcher.Constraint("Tangent", 18, 2, 19, 1),
    Sketcher.Constraint("Tangent", 19, 2, 16, 1),
    Sketcher.Constraint("Tangent", 20, 2, 21, 1),
    Sketcher.Constraint("Tangent", 21, 2, 22, 1),
    Sketcher.Constraint("Tangent", 22, 2, 23, 1),
    Sketcher.Constraint("Tangent", 23, 2, 20, 1),
    Sketcher.Constraint("Tangent", 24, 2, 25, 1),
    Sketcher.Constraint("Tangent", 25, 2, 26, 1),
    Sketcher.Constraint("Tangent", 26, 2, 27, 1),
    Sketcher.Constraint("Tangent", 27, 2, 24, 1),
    Sketcher.Constraint("Tangent", 28, 2, 29, 1),
    Sketcher.Constraint("Tangent", 29, 2, 30, 1),
    Sketcher.Constraint("Tangent", 30, 2, 31, 1),
    Sketcher.Constraint("Tangent", 31, 2, 28, 1),
    Sketcher.Constraint("Tangent", 32, 2, 33, 1),
    Sketcher.Constraint("Tangent", 33, 2, 34, 1),
    Sketcher.Constraint("Tangent", 34, 2, 35, 1),
    Sketcher.Constraint("Tangent", 35, 2, 32, 1),
    Sketcher.Constraint("Tangent", 36, 2, 37, 1),
    Sketcher.Constraint("Tangent", 37, 2, 38, 1),
    Sketcher.Constraint("Tangent", 38, 2, 39, 1),
    Sketcher.Constraint("Tangent", 39, 2, 36, 1),
    Sketcher.Constraint("Tangent", 40, 2, 41, 1),
    Sketcher.Constraint("Tangent", 41, 2, 42, 1),
    Sketcher.Constraint("Tangent", 42, 2, 43, 1),
    Sketcher.Constraint("Tangent", 43, 2, 40, 1),
    Sketcher.Constraint("Tangent", 44, 2, 45, 1),
    Sketcher.Constraint("Tangent", 45, 2, 46, 1),
    Sketcher.Constraint("Tangent", 46, 2, 47, 1),
    Sketcher.Constraint("Tangent", 47, 2, 44, 1),
    Sketcher.Constraint("Tangent", 48, 2, 49, 1),
    Sketcher.Constraint("Tangent", 49, 2, 50, 1),
    Sketcher.Constraint("Tangent", 50, 2, 51, 1),
    Sketcher.Constraint("Tangent", 51, 2, 48, 1),
    Sketcher.Constraint("Tangent", 52, 2, 53, 1),
    Sketcher.Constraint("Tangent", 53, 2, 54, 1),
    Sketcher.Constraint("Tangent", 54, 2, 55, 1),
    Sketcher.Constraint("Tangent", 55, 2, 52, 1),
    Sketcher.Constraint("Tangent", 56, 2, 57, 1),
    Sketcher.Constraint("Tangent", 57, 2, 58, 1),
    Sketcher.Constraint("Tangent", 58, 2, 59, 1),
    Sketcher.Constraint("Tangent", 59, 2, 56, 1),
    Sketcher.Constraint("Tangent", 60, 2, 61, 1),
    Sketcher.Constraint("Tangent", 61, 2, 62, 1),
    Sketcher.Constraint("Tangent", 62, 2, 63, 1),
    Sketcher.Constraint("Tangent", 63, 2, 60, 1),
    Sketcher.Constraint("Tangent", 64, 2, 65, 1),
    Sketcher.Constraint("Tangent", 65, 2, 66, 1),
    Sketcher.Constraint("Tangent", 66, 2, 67, 1),
    Sketcher.Constraint("Tangent", 67, 2, 64, 1),
    Sketcher.Constraint("Tangent", 68, 2, 69, 1),
    Sketcher.Constraint("Tangent", 69, 2, 70, 1),
    Sketcher.Constraint("Tangent", 70, 2, 71, 1),
    Sketcher.Constraint("Tangent", 71, 2, 68, 1),
    Sketcher.Constraint("Tangent", 72, 2, 73, 1),
    Sketcher.Constraint("Tangent", 73, 2, 74, 1),
    Sketcher.Constraint("Tangent", 74, 2, 75, 1),
    Sketcher.Constraint("Tangent", 75, 2, 72, 1),
    Sketcher.Constraint("Tangent", 76, 2, 77, 1),
    Sketcher.Constraint("Tangent", 77, 2, 78, 1),
    Sketcher.Constraint("Tangent", 78, 2, 79, 1),
    Sketcher.Constraint("Tangent", 79, 2, 76, 1),
    Sketcher.Constraint("Vertical", 1),
    Sketcher.Constraint("Vertical", 3),
    Sketcher.Constraint("Vertical", 5),
    Sketcher.Constraint("Vertical", 7),
    Sketcher.Constraint("Vertical", 9),
    Sketcher.Constraint("Vertical", 11),
    Sketcher.Constraint("Vertical", 13),
    Sketcher.Constraint("Vertical", 15),
    Sketcher.Constraint("Vertical", 17),
    Sketcher.Constraint("Vertical", 19),
    Sketcher.Constraint("Vertical", 21),
    Sketcher.Constraint("Vertical", 23),
    Sketcher.Constraint("Vertical", 25),
    Sketcher.Constraint("Vertical", 27),
    Sketcher.Constraint("Vertical", 29),
    Sketcher.Constraint("Vertical", 31),
    Sketcher.Constraint("Vertical", 33),
    Sketcher.Constraint("Vertical", 35),
    Sketcher.Constraint("Vertical", 37),
    Sketcher.Constraint("Vertical", 39),
    Sketcher.Constraint("Vertical", 41),
    Sketcher.Constraint("Vertical", 43),
    Sketcher.Constraint("Vertical", 45),
    Sketcher.Constraint("Vertical", 47),
    Sketcher.Constraint("Vertical", 49),
    Sketcher.Constraint("Vertical", 51),
    Sketcher.Constraint("Vertical", 53),
    Sketcher.Constraint("Vertical", 55),
    Sketcher.Constraint("Vertical", 57),
    Sketcher.Constraint("Vertical", 59),
    Sketcher.Constraint("Vertical", 61),
    Sketcher.Constraint("Vertical", 63),
    Sketcher.Constraint("Vertical", 65),
    Sketcher.Constraint("Vertical", 67),
    Sketcher.Constraint("Vertical", 69),
    Sketcher.Constraint("Vertical", 71),
    Sketcher.Constraint("Vertical", 73),
    Sketcher.Constraint("Vertical", 75),
    Sketcher.Constraint("Vertical", 77),
    Sketcher.Constraint("Vertical", 79),
    Sketcher.Constraint("Equal", 2, 4),
    Sketcher.Constraint("Equal", 6, 8),
    Sketcher.Constraint("Equal", 10, 12),
    Sketcher.Constraint("Equal", 14, 16),
    Sketcher.Constraint("Equal", 18, 20),
    Sketcher.Constraint("Equal", 22, 24),
    Sketcher.Constraint("Equal", 26, 28),
    Sketcher.Constraint("Equal", 30, 32),
    Sketcher.Constraint("Equal", 34, 36),
    Sketcher.Constraint("Equal", 38, 40),
    Sketcher.Constraint("Equal", 42, 44),
    Sketcher.Constraint("Equal", 46, 48),
    Sketcher.Constraint("Equal", 50, 52),
    Sketcher.Constraint("Equal", 54, 56),
    Sketcher.Constraint("Equal", 58, 60),
    Sketcher.Constraint("Equal", 62, 64),
    Sketcher.Constraint("Equal", 66, 68),
    Sketcher.Constraint("Equal", 70, 72),
    Sketcher.Constraint("Equal", 74, 76),
    Sketcher.Constraint("Symmetric", 0, 3, 40, 3, -2),
    Sketcher.Constraint("Symmetric", 4, 3, 44, 3, -2),
    Sketcher.Constraint("Symmetric", 8, 3, 48, 3, -2),
    Sketcher.Constraint("Symmetric", 12, 3, 52, 3, -2),
    Sketcher.Constraint("Symmetric", 16, 3, 56, 3, -2),
    Sketcher.Constraint("Symmetric", 20, 3, 60, 3, -2),
    Sketcher.Constraint("Symmetric", 24, 3, 64, 3, -2),
    Sketcher.Constraint("Symmetric", 28, 3, 68, 3, -2),
    Sketcher.Constraint("Symmetric", 32, 3, 72, 3, -2),
    Sketcher.Constraint("Symmetric", 36, 3, 76, 3, -2),
    Sketcher.Constraint("Horizontal", 2, 3, 4, 3),
    Sketcher.Constraint("Horizontal", 0, 3, 6, 3),
    Sketcher.Constraint("Horizontal", 4, 3, 8, 3),
    Sketcher.Constraint("Horizontal", 6, 3, 10, 3),
    Sketcher.Constraint("Horizontal", 8, 3, 12, 3),
    Sketcher.Constraint("Horizontal", 10, 3, 14, 3),
    Sketcher.Constraint("Horizontal", 12, 3, 16, 3),
    Sketcher.Constraint("Horizontal", 14, 3, 18, 3),
    Sketcher.Constraint("Horizontal", 16, 3, 20, 3),
    Sketcher.Constraint("Horizontal", 18, 3, 22, 3),
    Sketcher.Constraint("Horizontal", 20, 3, 24, 3),
    Sketcher.Constraint("Horizontal", 22, 3, 26, 3),
    Sketcher.Constraint("Horizontal", 24, 3, 28, 3),
    Sketcher.Constraint("Horizontal", 26, 3, 30, 3),
    Sketcher.Constraint("Horizontal", 28, 3, 32, 3),
    Sketcher.Constraint("Horizontal", 30, 3, 34, 3),
    Sketcher.Constraint("Horizontal", 32, 3, 36, 3),
    Sketcher.Constraint("Horizontal", 34, 3, 38, 3),
    Sketcher.Constraint("Horizontal", 36, 3, 42, 3),
    Sketcher.Constraint("Horizontal", 40, 3, 46, 3),
    Sketcher.Constraint("Horizontal", 46, 3, 50, 3),
    Sketcher.Constraint("Horizontal", 50, 3, 54, 3),
    Sketcher.Constraint("Horizontal", 54, 3, 58, 3),
    Sketcher.Constraint("Horizontal", 58, 3, 62, 3),
    Sketcher.Constraint("Horizontal", 62, 3, 66, 3),
    Sketcher.Constraint("Horizontal", 66, 3, 70, 3),
    Sketcher.Constraint("Horizontal", 70, 3, 74, 3),
    Sketcher.Constraint("Horizontal", 74, 3, 78, 3),
    Sketcher.Constraint("Radius", 0, Q("1 mm")),
    Sketcher.Constraint("DistanceY", 1, 2, 1, 1, Q("118 mm")),
    Sketcher.Constraint("DistanceX", 0, 3, -1, 1, Q("60 mm")),
    Sketcher.Constraint("DistanceY", -1, 1, 0, 3, Q("123 mm")),
    Sketcher.Constraint("DistanceX", 4, 3, -1, 1, Q("55 mm")),
    Sketcher.Constraint("DistanceX", 8, 3, -1, 1, Q("50 mm")),
    Sketcher.Constraint("DistanceX", 12, 3, -1, 1, Q("45 mm")),
    Sketcher.Constraint("DistanceX", 16, 3, -1, 1, Q("40 mm")),
    Sketcher.Constraint("DistanceX", 20, 3, -1, 1, Q("35 mm")),
    Sketcher.Constraint("DistanceX", 24, 3, -1, 1, Q("30 mm")),
    Sketcher.Constraint("DistanceX", 28, 3, -1, 1, Q("25 mm")),
    Sketcher.Constraint("DistanceX", 32, 3, -1, 1, Q("20 mm")),
    Sketcher.Constraint("DistanceX", 36, 3, -1, 1, Q("15 mm")),
])
pocket8 = body.newObject("PartDesign::Pocket", "Pocket007")
pocket8.Profile = sketch11
pocket8.Type = "ThroughAll"

doc.recompute()
